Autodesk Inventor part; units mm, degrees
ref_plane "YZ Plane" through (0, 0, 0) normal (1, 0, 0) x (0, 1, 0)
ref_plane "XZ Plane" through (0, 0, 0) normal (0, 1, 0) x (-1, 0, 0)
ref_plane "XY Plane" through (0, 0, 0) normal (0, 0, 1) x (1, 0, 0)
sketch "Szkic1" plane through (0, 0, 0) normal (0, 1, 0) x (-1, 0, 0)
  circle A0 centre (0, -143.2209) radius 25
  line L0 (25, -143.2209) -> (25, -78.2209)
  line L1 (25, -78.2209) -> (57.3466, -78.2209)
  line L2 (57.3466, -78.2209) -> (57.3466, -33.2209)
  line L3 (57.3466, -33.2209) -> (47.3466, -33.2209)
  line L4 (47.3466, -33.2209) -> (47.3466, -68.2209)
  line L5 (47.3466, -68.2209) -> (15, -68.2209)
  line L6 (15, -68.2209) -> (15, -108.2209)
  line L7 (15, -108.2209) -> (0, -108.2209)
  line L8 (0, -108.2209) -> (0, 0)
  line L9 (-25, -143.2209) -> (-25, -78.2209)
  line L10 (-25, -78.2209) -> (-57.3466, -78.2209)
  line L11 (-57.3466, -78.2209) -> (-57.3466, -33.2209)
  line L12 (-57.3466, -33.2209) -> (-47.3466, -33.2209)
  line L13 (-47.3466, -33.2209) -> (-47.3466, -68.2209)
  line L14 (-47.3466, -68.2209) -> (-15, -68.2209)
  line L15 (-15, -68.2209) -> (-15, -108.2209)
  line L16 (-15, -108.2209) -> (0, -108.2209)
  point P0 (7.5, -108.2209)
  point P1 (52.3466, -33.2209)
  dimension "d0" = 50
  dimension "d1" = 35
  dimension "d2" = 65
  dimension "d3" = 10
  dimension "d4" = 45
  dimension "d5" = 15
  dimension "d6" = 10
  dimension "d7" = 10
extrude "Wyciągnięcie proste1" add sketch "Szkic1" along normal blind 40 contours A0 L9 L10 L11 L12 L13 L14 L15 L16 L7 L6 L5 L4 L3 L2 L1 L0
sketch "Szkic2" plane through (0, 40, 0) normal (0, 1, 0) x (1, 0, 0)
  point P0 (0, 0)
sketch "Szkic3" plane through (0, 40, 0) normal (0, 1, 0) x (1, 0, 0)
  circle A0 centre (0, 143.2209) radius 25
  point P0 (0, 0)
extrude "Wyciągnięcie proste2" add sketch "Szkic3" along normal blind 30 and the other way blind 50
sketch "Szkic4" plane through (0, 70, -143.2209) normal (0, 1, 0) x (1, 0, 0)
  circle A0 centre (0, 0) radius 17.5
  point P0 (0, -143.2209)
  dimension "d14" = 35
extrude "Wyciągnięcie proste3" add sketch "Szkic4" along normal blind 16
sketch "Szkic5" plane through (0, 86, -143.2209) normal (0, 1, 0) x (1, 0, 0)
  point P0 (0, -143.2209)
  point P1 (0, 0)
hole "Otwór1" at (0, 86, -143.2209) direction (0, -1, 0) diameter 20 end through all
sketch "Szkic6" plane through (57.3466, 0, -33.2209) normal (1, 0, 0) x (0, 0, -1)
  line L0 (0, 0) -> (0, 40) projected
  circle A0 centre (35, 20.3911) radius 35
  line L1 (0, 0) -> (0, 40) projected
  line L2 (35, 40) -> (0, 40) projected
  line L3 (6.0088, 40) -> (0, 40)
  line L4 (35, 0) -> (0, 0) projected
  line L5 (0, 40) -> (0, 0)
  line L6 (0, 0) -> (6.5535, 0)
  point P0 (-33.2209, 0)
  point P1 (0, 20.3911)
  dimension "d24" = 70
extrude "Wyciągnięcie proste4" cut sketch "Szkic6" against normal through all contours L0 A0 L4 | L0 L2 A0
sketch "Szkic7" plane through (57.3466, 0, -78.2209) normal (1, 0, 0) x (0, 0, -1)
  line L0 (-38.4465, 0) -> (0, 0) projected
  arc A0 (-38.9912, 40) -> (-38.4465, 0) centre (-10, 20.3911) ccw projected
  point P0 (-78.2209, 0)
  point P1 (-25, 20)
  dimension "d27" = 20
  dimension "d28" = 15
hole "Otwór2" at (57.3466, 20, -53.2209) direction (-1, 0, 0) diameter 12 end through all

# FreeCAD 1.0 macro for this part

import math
import FreeCAD as App
import Part
import Sketcher
Q = App.Units.Quantity

doc = App.newDocument("Part")
body = doc.addObject("PartDesign::Body", "Body")

sketch1 = body.newObject("Sketcher::SketchObject", "Sketch")
sketch1.AttachmentSupport = (doc.getObject("XZ_Plane"), [""])
sketch1.MapMode = "FlatFace"
sketch1.addGeometry([
    Part.ArcOfCircle(Part.Circle(App.Vector(0, -143, 0), App.Vector(0, 0, 1), 25), math.radians(0), math.radians(180)),
    Part.LineSegment(App.Vector(-25, -143, 0), App.Vector(-25, -78, 0)),
    Part.LineSegment(App.Vector(-25, -78, 0), App.Vector(-57, -78, 0)),
    Part.LineSegment(App.Vector(-57, -78, 0), App.Vector(-57, -33, 0)),
    Part.LineSegment(App.Vector(-57, -33, 0), App.Vector(-47, -33, 0)),
    Part.LineSegment(App.Vector(-47, -33, 0), App.Vector(-47, -68, 0)),
    Part.LineSegment(App.Vector(-47, -68, 0), App.Vector(-15, -68, 0)),
    Part.LineSegment(App.Vector(-15, -68, 0), App.Vector(-15, -108, 0)),
    Part.LineSegment(App.Vector(-15, -108, 0), App.Vector(15, -108, 0)),
    Part.LineSegment(App.Vector(15, -108, 0), App.Vector(15, -68, 0)),
    Part.LineSegment(App.Vector(15, -68, 0), App.Vector(47, -68, 0)),
    Part.LineSegment(App.Vector(47, -68, 0), App.Vector(47, -33, 0)),
    Part.LineSegment(App.Vector(47, -33, 0), App.Vector(57, -33, 0)),
    Part.LineSegment(App.Vector(57, -33, 0), App.Vector(57, -78, 0)),
    Part.LineSegment(App.Vector(57, -78, 0), App.Vector(25, -78, 0)),
    Part.LineSegment(App.Vector(25, -78, 0), App.Vector(25, -143, 0)),
], False)
sketch1.addConstraint([
    Sketcher.Constraint("Tangent", 0, 2, 1, 1),
    Sketcher.Constraint("Coincident", 1, 2, 2, 1),
    Sketcher.Constraint("Coincident", 2, 2, 3, 1),
    Sketcher.Constraint("Coincident", 3, 2, 4, 1),
    Sketcher.Constraint("Coincident", 4, 2, 5, 1),
    Sketcher.Constraint("Coincident", 5, 2, 6, 1),
    Sketcher.Constraint("Coincident", 6, 2, 7, 1),
    Sketcher.Constraint("Coincident", 7, 2, 8, 1),
    Sketcher.Constraint("Coincident", 8, 2, 9, 1),
    Sketcher.Constraint("Coincident", 9, 2, 10, 1),
    Sketcher.Constraint("Coincident", 10, 2, 11, 1),
    Sketcher.Constraint("Coincident", 11, 2, 12, 1),
    Sketcher.Constraint("Coincident", 12, 2, 13, 1),
    Sketcher.Constraint("Coincident", 13, 2, 14, 1),
    Sketcher.Constraint("Coincident", 14, 2, 15, 1),
    Sketcher.Constraint("Tangent", 15, 2, 0, 1),
    Sketcher.Constraint("Vertical", 1),
    Sketcher.Constraint("Horizontal", 2),
    Sketcher.Constraint("Vertical", 3),
    Sketcher.Constraint("Horizontal", 4),
    Sketcher.Constraint("Vertical", 5),
    Sketcher.Constraint("Horizontal", 6),
    Sketcher.Constraint("Vertical", 7),
    Sketcher.Constraint("Horizontal", 8),
    Sketcher.Constraint("Vertical", 9),
    Sketcher.Constraint("Horizontal", 10),
    Sketcher.Constraint("Vertical", 11),
    Sketcher.Constraint("Horizontal", 12),
    Sketcher.Constraint("Vertical", 13),
    Sketcher.Constraint("Horizontal", 14),
    Sketcher.Constraint("Vertical", 15),
    Sketcher.Constraint("Symmetric", 6, 2, 9, 2, -2),
    Sketcher.Constraint("Symmetric", 4, 2, 11, 2, -2),
    Sketcher.Constraint("Symmetric", 2, 2, 13, 2, -2),
    Sketcher.Constraint("PointOnObject", 0, 3, -2),
    Sketcher.Constraint("Equal", 2, 6),
    Sketcher.Constraint("Radius", 0, Q("25 mm")),
    Sketcher.Constraint("DistanceX", 4, 1, 4, 2, Q("10 mm")),
    Sketcher.Constraint("DistanceY", 1, 1, 1, 2, Q("65 mm")),
    Sketcher.Constraint("DistanceY", 3, 1, 3, 2, Q("45 mm")),
    Sketcher.Constraint("DistanceY", 5, 2, 5, 1, Q("35 mm")),
    Sketcher.Constraint("DistanceY", 0, 2, 7, 2, Q("35 mm")),
    Sketcher.Constraint("DistanceX", 2, 2, 2, 1, Q("32.3466 mm")),
    Sketcher.Constraint("DistanceY", 0, 3, -1, 1, Q("143.221 mm")),
])
pad1 = body.newObject("PartDesign::Pad", "Pad")
pad1.Profile = sketch1
pad1.Length = 40
pad1.Reversed = True

sketch2 = body.newObject("Sketcher::SketchObject", "Sketch001")
sketch2.AttachmentSupport = (doc.getObject("XZ_Plane"), [""])
sketch2.MapMode = "FlatFace"
sketch2.AttachmentOffset = App.Placement(App.Vector(0, 0, -40), App.Rotation())
sketch2.addGeometry(Part.Circle(App.Vector(0, -143, 0), App.Vector(0, 0, 1), 25), False)
sketch2.addConstraint([
    Sketcher.Constraint("PointOnObject", 0, 3, -2),
    Sketcher.Constraint("Diameter", 0, Q("50 mm")),
    Sketcher.Constraint("DistanceY", 0, 3, -1, 1, Q("143.221 mm")),
])
pad2 = body.newObject("PartDesign::Pad", "Pad001")
pad2.Profile = sketch2
pad2.Type = "TwoLengths"
pad2.Length = 30
pad2.Length2 = 50
pad2.Reversed = True

sketch3 = body.newObject("Sketcher::SketchObject", "Sketch002")
sketch3.AttachmentSupport = (doc.getObject("XZ_Plane"), [""])
sketch3.MapMode = "FlatFace"
sketch3.AttachmentOffset = App.Placement(App.Vector(0, 0, -70), App.Rotation())
sketch3.addGeometry(Part.Circle(App.Vector(0, -143, 0), App.Vector(0, 0, 1), 18), False)
sketch3.addConstraint([
    Sketcher.Constraint("PointOnObject", 0, 3, -2),
    Sketcher.Constraint("Diameter", 0, Q("35 mm")),
    Sketcher.Constraint("DistanceY", 0, 3, -1, 1, Q("143.221 mm")),
])
pad3 = body.newObject("PartDesign::Pad", "Pad002")
pad3.Profile = sketch3
pad3.Length = 16
pad3.Reversed = True

sketch4 = body.newObject("Sketcher::SketchObject", "Sketch003")
sketch4.AttachmentSupport = (doc.getObject("XZ_Plane"), [""])
sketch4.MapMode = "FlatFace"
sketch4.AttachmentOffset = App.Placement(App.Vector(0, 0, -86), App.Rotation())
sketch4.addGeometry(Part.Circle(App.Vector(0, -143, 0), App.Vector(0, 0, 1), 10), False)
sketch4.addConstraint([
    Sketcher.Constraint("PointOnObject", 0, 3, -2),
    Sketcher.Constraint("Diameter", 0, Q("20 mm")),
    Sketcher.Constraint("DistanceY", 0, 3, -1, 1, Q("143.221 mm")),
])
doc.recompute()
hole = body.newObject("PartDesign::Hole", "Hole")
hole.Profile = sketch4
hole.ThreadType = "None"
hole.Diameter = 20
hole.DepthType = "ThroughAll"
hole.Reversed = True

sketch5 = body.newObject("Sketcher::SketchObject", "Sketch004")
sketch5.AttachmentSupport = (doc.getObject("YZ_Plane"), [""])
sketch5.MapMode = "FlatFace"
sketch5.AttachmentOffset = App.Placement(App.Vector(0, 0, 57.3466), App.Rotation())
sketch5.addGeometry([
    Part.LineSegment(App.Vector(20, -33, 0), App.Vector(0, -33, 0)),
    Part.LineSegment(App.Vector(0, -33, 0), App.Vector(0, -40, 0)),
    Part.ArcOfCircle(Part.Circle(App.Vector(20, -68, 0), App.Vector(0, 0, 1), 35), math.radians(90), math.radians(126)),
    Part.LineSegment(App.Vector(40, -33, 0), App.Vector(20, -33, 0)),
    Part.ArcOfCircle(Part.Circle(App.Vector(20, -68, 0), App.Vector(0, 0, 1), 35), math.radians(56), math.radians(90)),
    Part.LineSegment(App.Vector(40, -39, 0), App.Vector(40, -33, 0)),
], False)
sketch5.addConstraint([
    Sketcher.Constraint("Coincident", 0, 2, 1, 1),
    Sketcher.Constraint("Coincident", 1, 2, 2, 2),
    Sketcher.Constraint("Tangent", 2, 1, 0, 1),
    Sketcher.Constraint("Tangent", 3, 2, 4, 2),
    Sketcher.Constraint("Coincident", 4, 1, 5, 1),
    Sketcher.Constraint("Coincident", 5, 2, 3, 1),
    Sketcher.Constraint("Horizontal", 0),
    Sketcher.Constraint("Vertical", 1),
    Sketcher.Constraint("Horizontal", 3),
    Sketcher.Constraint("Vertical", 5),
    Sketcher.Constraint("Coincident", 4, 3, 2, 3),
    Sketcher.Constraint("Equal", 2, 4),
    Sketcher.Constraint("PointOnObject", 0, 2, -2),
    Sketcher.Constraint("Radius", 2, Q("35 mm")),
    Sketcher.Constraint("DistanceX", -1, 1, 4, 1, Q("40 mm")),
    Sketcher.Constraint("DistanceX", 0, 2, 0, 1, Q("20.391 mm")),
    Sketcher.Constraint("DistanceY", 2, 3, -1, 1, Q("68.221 mm")),
])
pocket1 = body.newObject("PartDesign::Pocket", "Pocket")
pocket1.Profile = sketch5
pocket1.Type = "ThroughAll"

sketch6 = body.newObject("Sketcher::SketchObject", "Sketch005")
sketch6.AttachmentSupport = (doc.getObject("YZ_Plane"), [""])
sketch6.MapMode = "FlatFace"
sketch6.AttachmentOffset = App.Placement(App.Vector(0, 0, 57.3466), App.Rotation())
sketch6.addGeometry(Part.Circle(App.Vector(20, -53, 0), App.Vector(0, 0, 1), 6), False)
sketch6.addConstraint([
    Sketcher.Constraint("Diameter", 0, Q("12 mm")),
    Sketcher.Constraint("DistanceX", -1, 1, 0, 3, Q("20 mm")),
    Sketcher.Constraint("DistanceY", 0, 3, -1, 1, Q("53.221 mm")),
])
doc.recompute()
hole2 = body.newObject("PartDesign::Hole", "Hole001")
hole2.Profile = sketch6
hole2.ThreadType = "None"
hole2.Diameter = 12
hole2.DepthType = "ThroughAll"

doc.recompute()
